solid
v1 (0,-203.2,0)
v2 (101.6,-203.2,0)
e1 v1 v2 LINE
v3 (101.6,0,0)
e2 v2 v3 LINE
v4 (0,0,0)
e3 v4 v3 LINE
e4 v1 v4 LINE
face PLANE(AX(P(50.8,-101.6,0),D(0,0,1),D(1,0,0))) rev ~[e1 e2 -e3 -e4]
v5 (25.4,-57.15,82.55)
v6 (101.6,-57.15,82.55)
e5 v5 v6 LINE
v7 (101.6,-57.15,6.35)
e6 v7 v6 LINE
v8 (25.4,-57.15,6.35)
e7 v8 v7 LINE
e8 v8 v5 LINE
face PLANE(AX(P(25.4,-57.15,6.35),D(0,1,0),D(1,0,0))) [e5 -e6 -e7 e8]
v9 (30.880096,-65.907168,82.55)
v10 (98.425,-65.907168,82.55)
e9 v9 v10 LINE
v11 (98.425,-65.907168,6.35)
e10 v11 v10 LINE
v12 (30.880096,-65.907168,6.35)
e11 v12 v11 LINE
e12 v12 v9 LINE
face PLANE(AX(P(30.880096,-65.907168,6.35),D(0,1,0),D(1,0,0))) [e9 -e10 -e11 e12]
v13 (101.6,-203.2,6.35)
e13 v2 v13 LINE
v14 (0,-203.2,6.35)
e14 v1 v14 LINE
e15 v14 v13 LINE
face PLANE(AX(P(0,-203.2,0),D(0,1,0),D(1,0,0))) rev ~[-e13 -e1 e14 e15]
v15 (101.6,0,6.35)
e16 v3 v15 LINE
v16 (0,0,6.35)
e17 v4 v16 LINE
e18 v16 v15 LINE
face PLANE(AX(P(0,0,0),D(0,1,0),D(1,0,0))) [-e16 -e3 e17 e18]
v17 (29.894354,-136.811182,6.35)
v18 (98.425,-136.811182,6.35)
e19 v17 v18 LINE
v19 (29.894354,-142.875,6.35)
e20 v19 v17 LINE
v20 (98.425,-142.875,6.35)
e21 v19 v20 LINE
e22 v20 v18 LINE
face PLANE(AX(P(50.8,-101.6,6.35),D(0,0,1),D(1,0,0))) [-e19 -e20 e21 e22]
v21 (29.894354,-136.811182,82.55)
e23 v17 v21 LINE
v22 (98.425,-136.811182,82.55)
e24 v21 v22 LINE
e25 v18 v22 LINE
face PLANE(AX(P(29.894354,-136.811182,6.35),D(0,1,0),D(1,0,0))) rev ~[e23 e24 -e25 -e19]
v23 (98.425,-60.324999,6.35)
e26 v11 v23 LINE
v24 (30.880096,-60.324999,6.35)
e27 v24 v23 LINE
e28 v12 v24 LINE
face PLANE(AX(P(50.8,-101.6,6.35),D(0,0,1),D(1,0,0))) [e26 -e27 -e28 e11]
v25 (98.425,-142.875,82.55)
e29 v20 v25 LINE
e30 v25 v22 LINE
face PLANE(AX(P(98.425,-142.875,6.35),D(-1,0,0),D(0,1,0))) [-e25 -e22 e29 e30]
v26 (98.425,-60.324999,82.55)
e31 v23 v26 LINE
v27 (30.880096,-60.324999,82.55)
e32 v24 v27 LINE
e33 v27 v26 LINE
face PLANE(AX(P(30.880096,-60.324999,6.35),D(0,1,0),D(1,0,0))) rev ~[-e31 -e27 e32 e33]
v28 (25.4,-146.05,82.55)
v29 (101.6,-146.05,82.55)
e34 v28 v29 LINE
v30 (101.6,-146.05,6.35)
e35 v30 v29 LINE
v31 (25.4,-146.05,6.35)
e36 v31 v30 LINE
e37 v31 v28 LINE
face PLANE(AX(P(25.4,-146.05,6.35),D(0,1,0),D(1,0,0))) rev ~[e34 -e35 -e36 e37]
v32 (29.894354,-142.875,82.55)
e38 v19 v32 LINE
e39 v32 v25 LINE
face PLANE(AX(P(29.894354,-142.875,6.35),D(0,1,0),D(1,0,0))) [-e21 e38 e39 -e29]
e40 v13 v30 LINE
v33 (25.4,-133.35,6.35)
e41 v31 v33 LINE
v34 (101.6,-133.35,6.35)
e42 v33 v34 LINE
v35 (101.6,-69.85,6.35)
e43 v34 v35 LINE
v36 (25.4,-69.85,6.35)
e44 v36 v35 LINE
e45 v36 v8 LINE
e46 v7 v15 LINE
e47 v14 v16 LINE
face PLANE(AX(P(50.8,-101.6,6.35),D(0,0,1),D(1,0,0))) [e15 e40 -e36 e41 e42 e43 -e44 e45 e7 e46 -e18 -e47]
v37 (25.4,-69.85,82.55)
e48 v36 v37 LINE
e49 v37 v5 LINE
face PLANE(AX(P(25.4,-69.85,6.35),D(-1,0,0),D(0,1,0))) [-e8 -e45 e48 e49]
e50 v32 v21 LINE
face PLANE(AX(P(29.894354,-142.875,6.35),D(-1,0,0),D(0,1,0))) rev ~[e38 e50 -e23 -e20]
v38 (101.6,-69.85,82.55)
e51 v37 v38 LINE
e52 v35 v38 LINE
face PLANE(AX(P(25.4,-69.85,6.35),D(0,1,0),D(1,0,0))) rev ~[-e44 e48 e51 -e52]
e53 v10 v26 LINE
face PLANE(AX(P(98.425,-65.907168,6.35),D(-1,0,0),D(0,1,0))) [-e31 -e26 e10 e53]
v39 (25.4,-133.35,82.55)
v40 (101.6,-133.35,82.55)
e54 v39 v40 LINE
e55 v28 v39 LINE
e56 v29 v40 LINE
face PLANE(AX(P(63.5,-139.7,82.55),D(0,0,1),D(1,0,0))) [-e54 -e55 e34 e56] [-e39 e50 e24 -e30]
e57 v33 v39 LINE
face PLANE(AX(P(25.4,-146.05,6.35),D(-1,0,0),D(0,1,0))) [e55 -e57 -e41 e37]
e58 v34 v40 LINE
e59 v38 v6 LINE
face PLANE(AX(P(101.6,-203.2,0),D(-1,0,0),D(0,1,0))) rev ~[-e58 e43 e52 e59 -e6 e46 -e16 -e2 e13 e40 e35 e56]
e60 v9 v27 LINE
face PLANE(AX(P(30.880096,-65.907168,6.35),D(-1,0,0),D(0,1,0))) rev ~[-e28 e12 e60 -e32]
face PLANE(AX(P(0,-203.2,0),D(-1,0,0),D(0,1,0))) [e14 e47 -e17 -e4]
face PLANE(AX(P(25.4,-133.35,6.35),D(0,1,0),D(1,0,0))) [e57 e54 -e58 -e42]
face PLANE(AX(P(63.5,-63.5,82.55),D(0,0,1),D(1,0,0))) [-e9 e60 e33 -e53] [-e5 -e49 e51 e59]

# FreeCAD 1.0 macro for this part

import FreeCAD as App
import Part
import Sketcher
Q = App.Units.Quantity

doc = App.newDocument("Part")
body = doc.addObject("PartDesign::Body", "Body")

# Sketch on XY plane
sketch1 = doc.addObject("Sketcher::SketchObject", "Sketch")
body.addObject(sketch1)
sketch1.AttachmentSupport = (doc.XY_Plane, [""])
sketch1.MapMode = "FlatFace"
sketch1.addGeometry([
    Part.LineSegment(App.Vector(0, 0, 0), App.Vector(0, -203, 0)),
    Part.LineSegment(App.Vector(0, -203, 0), App.Vector(102, -203, 0)),
    Part.LineSegment(App.Vector(102, -203, 0), App.Vector(102, 0, 0)),
    Part.LineSegment(App.Vector(102, 0, 0), App.Vector(0, 0, 0)),
], False)
sketch1.addConstraint([
    Sketcher.Constraint("Coincident", 0, 2, 1, 1),
    Sketcher.Constraint("Coincident", 1, 2, 2, 1),
    Sketcher.Constraint("Coincident", 2, 2, 3, 1),
    Sketcher.Constraint("Coincident", 3, 2, 0, 1),
    Sketcher.Constraint("Vertical", 0),
    Sketcher.Constraint("Horizontal", 1),
    Sketcher.Constraint("Vertical", 2),
    Sketcher.Constraint("Horizontal", 3),
    Sketcher.Constraint("Coincident", 3, 2, -1, 1),
    Sketcher.Constraint("DistanceX", 1, 1, 1, 2, Q("4 in")),
    Sketcher.Constraint("DistanceY", 0, 2, 0, 1, Q("8 in")),
])
pad1 = doc.addObject("PartDesign::Pad", "Pad")
body.addObject(pad1)
pad1.Profile = sketch1
pad1.Length = Q("0.25 in")

# Sketch on XY plane
sketch2 = doc.addObject("Sketcher::SketchObject", "Sketch001")
body.addObject(sketch2)
sketch2.AttachmentSupport = (doc.XY_Plane, [""])
sketch2.MapMode = "FlatFace"
sketch2.AttachmentOffset = App.Placement(App.Vector(0, 0, 0.25 * 25.4), App.Rotation())
sketch2.addGeometry([
    Part.LineSegment(App.Vector(25, -57, 0), App.Vector(25, -70, 0)),  # 0
    Part.LineSegment(App.Vector(25, -70, 0), App.Vector(102, -70, 0)),  # 1
    Part.LineSegment(App.Vector(102, -70, 0), App.Vector(102, -57, 0)),  # 2
    Part.LineSegment(App.Vector(102, -57, 0), App.Vector(25, -57, 0)),  # 3
    Part.LineSegment(App.Vector(98, -66, 0), App.Vector(31, -66, 0)),  # 4
    Part.LineSegment(App.Vector(31, -66, 0), App.Vector(31, -60, 0)),  # 5
    Part.LineSegment(App.Vector(31, -60, 0), App.Vector(98, -60, 0)),  # 6
    Part.LineSegment(App.Vector(98, -60, 0), App.Vector(98, -66, 0)),  # 7
    Part.LineSegment(App.Vector(25, -133, 0), App.Vector(25, -146, 0)),  # 8
    Part.LineSegment(App.Vector(25, -146, 0), App.Vector(102, -146, 0)),  # 9
    Part.LineSegment(App.Vector(102, -146, 0), App.Vector(102, -133, 0)),  # 10
    Part.LineSegment(App.Vector(102, -133, 0), App.Vector(25, -133, 0)),  # 11
    Part.LineSegment(App.Vector(98, -143, 0), App.Vector(30, -143, 0)),  # 12
    Part.LineSegment(App.Vector(30, -143, 0), App.Vector(30, -137, 0)),  # 13
    Part.LineSegment(App.Vector(30, -137, 0), App.Vector(98, -137, 0)),  # 14
    Part.LineSegment(App.Vector(98, -137, 0), App.Vector(98, -143, 0)),  # 15
], False)
sketch2.addConstraint([
    Sketcher.Constraint("Coincident", 0, 2, 1, 1),
    Sketcher.Constraint("Coincident", 1, 2, 2, 1),
    Sketcher.Constraint("Coincident", 2, 2, 3, 1),
    Sketcher.Constraint("Coincident", 3, 2, 0, 1),
    Sketcher.Constraint("Coincident", 4, 2, 5, 1),
    Sketcher.Constraint("Coincident", 5, 2, 6, 1),
    Sketcher.Constraint("Coincident", 6, 2, 7, 1),
    Sketcher.Constraint("Coincident", 7, 2, 4, 1),
    Sketcher.Constraint("Coincident", 8, 2, 9, 1),
    Sketcher.Constraint("Coincident", 9, 2, 10, 1),
    Sketcher.Constraint("Coincident", 10, 2, 11, 1),
    Sketcher.Constraint("Coincident", 11, 2, 8, 1),
    Sketcher.Constraint("Coincident", 12, 2, 13, 1),
    Sketcher.Constraint("Coincident", 13, 2, 14, 1),
    Sketcher.Constraint("Coincident", 14, 2, 15, 1),
    Sketcher.Constraint("Coincident", 15, 2, 12, 1),
    Sketcher.Constraint("Vertical", 0),
    Sketcher.Constraint("Horizontal", 1),
    Sketcher.Constraint("Vertical", 2),
    Sketcher.Constraint("Horizontal", 3),
    Sketcher.Constraint("Horizontal", 4),
    Sketcher.Constraint("Vertical", 5),
    Sketcher.Constraint("Horizontal", 6),
    Sketcher.Constraint("Vertical", 7),
    Sketcher.Constraint("Vertical", 8),
    Sketcher.Constraint("Horizontal", 9),
    Sketcher.Constraint("Vertical", 10),
    Sketcher.Constraint("Horizontal", 11),
    Sketcher.Constraint("Horizontal", 12),
    Sketcher.Constraint("Vertical", 13),
    Sketcher.Constraint("Horizontal", 14),
    Sketcher.Constraint("Vertical", 15),
    Sketcher.Constraint("Vertical", 3, 2, 8, 2),
    Sketcher.Constraint("Vertical", 2, 2, 9, 2),
    Sketcher.Constraint("Vertical", 7, 2, 14, 2),
    Sketcher.Constraint("Equal", 2, 8),
    Sketcher.Constraint("DistanceX", 1, 1, 1, 2, Q("3 in")),
    Sketcher.Constraint("DistanceY", 0, 2, 0, 1, Q("0.5 in")),
    Sketcher.Constraint("DistanceX", -1, 1, 0, 2, Q("1 in")),
    Sketcher.Constraint("DistanceY", 8, 2, 0, 2, Q("3 in")),
    Sketcher.Constraint("DistanceY", 0, 2, -1, 1, Q("2.75 in")),
    Sketcher.Constraint("DistanceY", 5, 2, -1, 1, Q("2.375 in")),
    Sketcher.Constraint("DistanceX", -1, 1, 6, 2, Q("3.875 in")),
    Sketcher.Constraint("DistanceY", 12, 2, -1, 1, Q("5.625 in")),
    Sketcher.Constraint("DistanceY", 5, 1, 5, 2, 5.582169),
    Sketcher.Constraint("DistanceY", 13, 1, 13, 2, 6.063819),
    Sketcher.Constraint("DistanceX", 4, 2, 4, 1, 67.544904),
    Sketcher.Constraint("DistanceX", 12, 2, 12, 1, 68.530646),
])
pad2 = doc.addObject("PartDesign::Pad", "Pad001")
body.addObject(pad2)
pad2.Profile = sketch2
pad2.Length = Q("3 in")

doc.recompute()
